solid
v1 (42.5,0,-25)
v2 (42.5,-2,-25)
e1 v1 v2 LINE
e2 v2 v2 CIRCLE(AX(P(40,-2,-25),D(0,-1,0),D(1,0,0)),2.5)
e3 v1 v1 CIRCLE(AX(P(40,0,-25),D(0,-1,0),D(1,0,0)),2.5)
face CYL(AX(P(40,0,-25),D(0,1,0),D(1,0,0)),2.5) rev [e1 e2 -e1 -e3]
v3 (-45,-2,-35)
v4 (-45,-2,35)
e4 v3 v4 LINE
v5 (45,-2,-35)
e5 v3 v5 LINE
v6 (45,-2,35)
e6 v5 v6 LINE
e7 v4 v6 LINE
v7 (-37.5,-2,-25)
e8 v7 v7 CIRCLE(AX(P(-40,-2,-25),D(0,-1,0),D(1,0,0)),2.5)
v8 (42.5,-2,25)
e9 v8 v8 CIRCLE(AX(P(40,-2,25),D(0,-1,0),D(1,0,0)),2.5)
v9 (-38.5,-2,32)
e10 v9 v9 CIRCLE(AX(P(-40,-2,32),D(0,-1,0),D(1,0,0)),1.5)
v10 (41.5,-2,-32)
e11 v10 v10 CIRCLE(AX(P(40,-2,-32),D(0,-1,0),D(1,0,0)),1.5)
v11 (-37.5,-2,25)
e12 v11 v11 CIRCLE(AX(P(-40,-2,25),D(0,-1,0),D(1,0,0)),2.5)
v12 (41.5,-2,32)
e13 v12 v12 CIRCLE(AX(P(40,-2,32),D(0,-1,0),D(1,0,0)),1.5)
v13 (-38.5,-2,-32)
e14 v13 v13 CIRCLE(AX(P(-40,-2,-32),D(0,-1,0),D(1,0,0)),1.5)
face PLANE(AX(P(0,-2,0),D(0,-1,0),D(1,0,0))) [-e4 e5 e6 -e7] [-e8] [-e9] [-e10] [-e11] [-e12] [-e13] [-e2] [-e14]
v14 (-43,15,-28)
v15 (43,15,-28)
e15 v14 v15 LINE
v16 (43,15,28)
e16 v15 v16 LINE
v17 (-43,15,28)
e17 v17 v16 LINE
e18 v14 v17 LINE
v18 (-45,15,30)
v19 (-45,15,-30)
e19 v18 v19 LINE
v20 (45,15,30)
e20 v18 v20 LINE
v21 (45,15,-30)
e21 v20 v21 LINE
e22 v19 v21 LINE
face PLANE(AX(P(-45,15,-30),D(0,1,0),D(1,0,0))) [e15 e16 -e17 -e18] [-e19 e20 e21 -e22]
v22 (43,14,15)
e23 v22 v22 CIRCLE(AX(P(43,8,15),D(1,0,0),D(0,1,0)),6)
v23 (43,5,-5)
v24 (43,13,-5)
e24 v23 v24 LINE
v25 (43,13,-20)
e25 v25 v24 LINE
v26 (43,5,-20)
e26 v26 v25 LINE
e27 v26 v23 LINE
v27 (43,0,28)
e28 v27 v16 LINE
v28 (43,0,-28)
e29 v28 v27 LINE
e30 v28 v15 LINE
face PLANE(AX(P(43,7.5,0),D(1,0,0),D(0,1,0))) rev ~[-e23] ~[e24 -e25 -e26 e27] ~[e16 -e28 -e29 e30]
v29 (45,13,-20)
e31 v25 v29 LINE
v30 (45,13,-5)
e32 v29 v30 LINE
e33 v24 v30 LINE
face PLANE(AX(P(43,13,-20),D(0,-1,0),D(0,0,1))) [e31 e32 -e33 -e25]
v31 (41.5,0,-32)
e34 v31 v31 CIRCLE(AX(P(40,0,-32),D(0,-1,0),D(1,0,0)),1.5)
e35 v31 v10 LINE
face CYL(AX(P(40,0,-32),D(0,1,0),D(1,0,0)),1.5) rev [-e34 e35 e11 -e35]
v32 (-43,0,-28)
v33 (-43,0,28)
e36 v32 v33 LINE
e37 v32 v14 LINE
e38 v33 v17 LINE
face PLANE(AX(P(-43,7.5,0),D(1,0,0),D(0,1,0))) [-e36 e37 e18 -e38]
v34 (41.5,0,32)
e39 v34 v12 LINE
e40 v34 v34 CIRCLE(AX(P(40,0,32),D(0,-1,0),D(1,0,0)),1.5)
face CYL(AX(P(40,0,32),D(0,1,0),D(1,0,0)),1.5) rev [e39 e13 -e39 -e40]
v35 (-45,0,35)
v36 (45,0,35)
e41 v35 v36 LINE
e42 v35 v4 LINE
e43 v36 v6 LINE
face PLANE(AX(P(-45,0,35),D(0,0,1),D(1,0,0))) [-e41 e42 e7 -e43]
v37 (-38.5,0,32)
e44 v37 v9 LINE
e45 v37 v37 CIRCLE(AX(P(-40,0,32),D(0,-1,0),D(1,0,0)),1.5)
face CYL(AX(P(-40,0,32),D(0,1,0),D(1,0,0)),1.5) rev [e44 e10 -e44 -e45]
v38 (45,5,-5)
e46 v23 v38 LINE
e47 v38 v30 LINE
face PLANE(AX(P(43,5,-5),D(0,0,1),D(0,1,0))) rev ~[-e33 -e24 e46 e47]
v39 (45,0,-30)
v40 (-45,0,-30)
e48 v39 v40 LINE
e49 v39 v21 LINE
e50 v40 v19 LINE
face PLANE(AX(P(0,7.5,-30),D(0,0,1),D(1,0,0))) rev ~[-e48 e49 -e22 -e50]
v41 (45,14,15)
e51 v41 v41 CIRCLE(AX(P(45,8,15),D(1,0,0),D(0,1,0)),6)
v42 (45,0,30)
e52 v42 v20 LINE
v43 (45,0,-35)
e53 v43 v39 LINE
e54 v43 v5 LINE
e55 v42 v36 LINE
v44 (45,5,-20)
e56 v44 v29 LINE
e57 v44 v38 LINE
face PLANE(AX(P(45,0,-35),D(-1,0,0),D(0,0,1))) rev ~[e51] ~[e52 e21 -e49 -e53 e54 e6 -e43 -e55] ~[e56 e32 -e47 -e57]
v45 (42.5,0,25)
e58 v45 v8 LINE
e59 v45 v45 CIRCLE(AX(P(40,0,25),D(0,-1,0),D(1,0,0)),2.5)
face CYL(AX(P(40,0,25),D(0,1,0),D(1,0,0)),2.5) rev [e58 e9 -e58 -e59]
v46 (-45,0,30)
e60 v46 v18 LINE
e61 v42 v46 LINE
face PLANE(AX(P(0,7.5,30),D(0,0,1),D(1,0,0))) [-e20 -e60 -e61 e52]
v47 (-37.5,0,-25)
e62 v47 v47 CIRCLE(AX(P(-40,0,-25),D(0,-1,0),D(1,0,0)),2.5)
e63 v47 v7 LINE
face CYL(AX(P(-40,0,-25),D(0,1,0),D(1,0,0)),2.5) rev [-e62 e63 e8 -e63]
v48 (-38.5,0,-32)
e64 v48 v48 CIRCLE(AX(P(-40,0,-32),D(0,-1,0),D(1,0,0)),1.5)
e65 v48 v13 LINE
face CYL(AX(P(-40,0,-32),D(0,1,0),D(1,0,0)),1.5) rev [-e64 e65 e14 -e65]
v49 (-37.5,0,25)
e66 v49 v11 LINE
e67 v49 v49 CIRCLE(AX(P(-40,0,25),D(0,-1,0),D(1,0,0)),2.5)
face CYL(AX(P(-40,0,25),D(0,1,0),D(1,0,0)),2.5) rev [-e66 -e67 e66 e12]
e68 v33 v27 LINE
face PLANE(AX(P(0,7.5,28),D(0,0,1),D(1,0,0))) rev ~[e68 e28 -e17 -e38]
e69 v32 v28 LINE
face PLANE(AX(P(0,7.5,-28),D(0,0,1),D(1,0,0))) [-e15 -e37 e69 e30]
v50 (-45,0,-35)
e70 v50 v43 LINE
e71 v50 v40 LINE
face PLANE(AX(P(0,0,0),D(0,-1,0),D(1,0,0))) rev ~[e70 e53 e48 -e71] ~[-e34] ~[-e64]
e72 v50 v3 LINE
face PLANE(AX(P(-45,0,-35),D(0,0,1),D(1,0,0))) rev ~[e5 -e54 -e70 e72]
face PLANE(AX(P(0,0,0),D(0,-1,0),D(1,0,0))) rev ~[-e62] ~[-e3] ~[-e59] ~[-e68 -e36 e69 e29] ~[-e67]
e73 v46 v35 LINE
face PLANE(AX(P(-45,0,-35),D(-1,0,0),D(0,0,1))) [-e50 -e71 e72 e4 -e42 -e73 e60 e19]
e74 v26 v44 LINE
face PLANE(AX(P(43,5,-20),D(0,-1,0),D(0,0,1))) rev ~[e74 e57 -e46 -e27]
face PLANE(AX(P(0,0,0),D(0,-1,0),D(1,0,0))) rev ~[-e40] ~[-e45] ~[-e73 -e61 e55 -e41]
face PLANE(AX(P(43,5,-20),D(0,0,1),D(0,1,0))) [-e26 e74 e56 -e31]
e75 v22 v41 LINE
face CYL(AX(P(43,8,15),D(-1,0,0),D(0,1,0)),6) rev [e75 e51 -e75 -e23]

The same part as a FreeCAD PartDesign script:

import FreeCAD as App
import Part
import Sketcher
Q = App.Units.Quantity


def add_polygon(sketch, points):
    """Adds a closed chain of lines whose ends are joined by coincident constraints."""
    first, n = sketch.GeometryCount, len(points)
    for a, b in zip(points, points[1:] + points[:1]):
        sketch.addGeometry(Part.LineSegment(App.Vector(*a, 0), App.Vector(*b, 0)), False)
    for i in range(n):
        sketch.addConstraint(Sketcher.Constraint("Coincident", first + i, 2, first + (i + 1) % n, 1))

doc = App.newDocument("Part")
body = doc.addObject("PartDesign::Body", "Body")

sketch1 = body.newObject("Sketcher::SketchObject", "Sketch")
sketch1.AttachmentSupport = (doc.getObject("YZ_Plane"), [""])
sketch1.MapMode = "FlatFace"
add_polygon(sketch1, [(0, 30), (0, -30), (15, -30), (15, 30)])
add_polygon(sketch1, [(13, -20), (5, -20), (5, -5), (13, -5)])
sketch1.addGeometry(Part.Circle(App.Vector(8, 15, 0), App.Vector(0, 0, 1), 6), False)
sketch1.addConstraint([
    Sketcher.Constraint("Vertical", 0),
    Sketcher.Constraint("Horizontal", 1),
    Sketcher.Constraint("Vertical", 2),
    Sketcher.Constraint("Horizontal", 3),
    Sketcher.Constraint("Horizontal", 4),
    Sketcher.Constraint("Vertical", 5),
    Sketcher.Constraint("Horizontal", 6),
    Sketcher.Constraint("Vertical", 7),
    Sketcher.Constraint("Symmetric", 0, 2, 3, 2, -1, 1),
    Sketcher.Constraint("Equal", 3, 5),
    Sketcher.Constraint("Diameter", 8, Q("12 mm")),
    Sketcher.Constraint("DistanceX", 1, 1, 1, 2, Q("15 mm")),
    Sketcher.Constraint("DistanceX", 4, 2, 4, 1, Q("8 mm")),
    Sketcher.Constraint("DistanceY", 0, 2, 0, 1, Q("60 mm")),
    Sketcher.Constraint("DistanceX", -1, 1, 8, 3, Q("8 mm")),
    Sketcher.Constraint("DistanceY", -1, 1, 8, 3, Q("15 mm")),
    Sketcher.Constraint("DistanceX", -1, 1, 4, 2, Q("5 mm")),
    Sketcher.Constraint("DistanceY", 4, 2, -1, 1, Q("20 mm")),
])
pad1 = body.newObject("PartDesign::Pad", "Pad")
pad1.Profile = sketch1
pad1.Length = 2
body2 = doc.addObject("PartDesign::Body", "Body001")
doc.recompute()

body.Placement = App.Placement(App.Vector(43, 0, 0), App.Rotation(App.Vector(0, 0, 1), 0))
boolean = body2.newObject("PartDesign::Boolean", "Boolean")
boolean.Type = "Fuse"
boolean.addObjects([body])
body3 = doc.addObject("PartDesign::Body", "Body002")

sketch2 = body3.newObject("Sketcher::SketchObject", "Sketch001")
sketch2.AttachmentSupport = (doc.getObject("YZ_Plane002"), [""])
sketch2.MapMode = "FlatFace"
add_polygon(sketch2, [(0, 30), (0, -30), (15, -30), (15, 30)])
sketch2.addConstraint([
    Sketcher.Constraint("Vertical", 0),
    Sketcher.Constraint("Horizontal", 1),
    Sketcher.Constraint("Vertical", 2),
    Sketcher.Constraint("Horizontal", 3),
    Sketcher.Constraint("Symmetric", 0, 2, 3, 2, -1, 1),
    Sketcher.Constraint("DistanceX", 1, 1, 1, 2, Q("15 mm")),
    Sketcher.Constraint("DistanceY", 0, 2, 0, 1, Q("60 mm")),
])
pad2 = body3.newObject("PartDesign::Pad", "Pad001")
pad2.Profile = sketch2
pad2.Length = 2
body4 = doc.addObject("PartDesign::Body", "Body003")
doc.recompute()

body3.Placement = App.Placement(App.Vector(-45, 0, 0), App.Rotation(App.Vector(0, 0, 1), 0))
boolean2 = body4.newObject("PartDesign::Boolean", "Boolean001")
boolean2.Type = "Fuse"
boolean2.addObjects([body3])
body5 = doc.addObject("PartDesign::Body", "Body004")

sketch3 = body5.newObject("Sketcher::SketchObject", "Sketch002")
sketch3.AttachmentSupport = (doc.getObject("XY_Plane004"), [""])
sketch3.MapMode = "FlatFace"
add_polygon(sketch3, [(-45, 15), (-45, 0), (45, 0), (45, 15)])
sketch3.addConstraint([
    Sketcher.Constraint("Vertical", 0),
    Sketcher.Constraint("Horizontal", 1),
    Sketcher.Constraint("Vertical", 2),
    Sketcher.Constraint("Horizontal", 3),
    Sketcher.Constraint("Symmetric", 0, 2, 1, 2, -1, 1),
    Sketcher.Constraint("DistanceX", 1, 1, 1, 2, Q("90 mm")),
    Sketcher.Constraint("DistanceY", 0, 2, 0, 1, Q("15 mm")),
])
pad3 = body5.newObject("PartDesign::Pad", "Pad002")
pad3.Profile = sketch3
pad3.Length = 2
body6 = doc.addObject("PartDesign::Body", "Body005")
doc.recompute()

body5.Placement = App.Placement(App.Vector(0, 0, -30), App.Rotation(App.Vector(0, 0, 1), 0))
boolean3 = body6.newObject("PartDesign::Boolean", "Boolean002")
boolean3.Type = "Fuse"
boolean3.addObjects([body5])
body7 = doc.addObject("PartDesign::Body", "Body006")

sketch4 = body7.newObject("Sketcher::SketchObject", "Sketch003")
sketch4.AttachmentSupport = (doc.getObject("XY_Plane006"), [""])
sketch4.MapMode = "FlatFace"
add_polygon(sketch4, [(-45, 15), (-45, 0), (45, 0), (45, 15)])
sketch4.addConstraint([
    Sketcher.Constraint("Vertical", 0),
    Sketcher.Constraint("Horizontal", 1),
    Sketcher.Constraint("Vertical", 2),
    Sketcher.Constraint("Horizontal", 3),
    Sketcher.Constraint("Symmetric", 0, 2, 1, 2, -1, 1),
    Sketcher.Constraint("DistanceX", 1, 1, 1, 2, Q("90 mm")),
    Sketcher.Constraint("DistanceY", 0, 2, 0, 1, Q("15 mm")),
])
pad4 = body7.newObject("PartDesign::Pad", "Pad003")
pad4.Profile = sketch4
pad4.Length = 2
body8 = doc.addObject("PartDesign::Body", "Body007")
doc.recompute()

body7.Placement = App.Placement(App.Vector(0, 0, 28), App.Rotation(App.Vector(0, 0, 1), 0))
boolean4 = body8.newObject("PartDesign::Boolean", "Boolean003")
boolean4.Type = "Fuse"
boolean4.addObjects([body7])
body9 = doc.addObject("PartDesign::Body", "Body008")

sketch5 = body9.newObject("Sketcher::SketchObject", "Sketch004")
sketch5.AttachmentSupport = (doc.getObject("XZ_Plane008"), [""])
sketch5.MapMode = "FlatFace"
add_polygon(sketch5, [(-45, 35), (-45, -35), (45, -35), (45, 35)])
sketch5.addGeometry(Part.Circle(App.Vector(-40, -32, 0), App.Vector(0, 0, 1), 1.5), False)
sketch5.addGeometry(Part.Circle(App.Vector(-40, -25, 0), App.Vector(0, 0, 1), 2.5), False)
sketch5.addGeometry(Part.Circle(App.Vector(40, -32, 0), App.Vector(0, 0, 1), 1.5), False)
sketch5.addGeometry(Part.Circle(App.Vector(40, -25, 0), App.Vector(0, 0, 1), 2.5), False)
sketch5.addGeometry(Part.Circle(App.Vector(-40, 25, 0), App.Vector(0, 0, 1), 2.5), False)
sketch5.addGeometry(Part.Circle(App.Vector(-40, 32, 0), App.Vector(0, 0, 1), 1.5), False)
sketch5.addGeometry(Part.Circle(App.Vector(40, 25, 0), App.Vector(0, 0, 1), 2.5), False)
sketch5.addGeometry(Part.Circle(App.Vector(40, 32, 0), App.Vector(0, 0, 1), 1.5), False)
sketch5.addConstraint([
    Sketcher.Constraint("Vertical", 0),
    Sketcher.Constraint("Horizontal", 1),
    Sketcher.Constraint("Vertical", 2),
    Sketcher.Constraint("Horizontal", 3),
    Sketcher.Constraint("Equal", 4, 6),
    Sketcher.Constraint("Equal", 5, 7),
    Sketcher.Constraint("Equal", 7, 8),
    Sketcher.Constraint("Equal", 6, 9),
    Sketcher.Constraint("Equal", 8, 10),
    Sketcher.Constraint("Equal", 9, 11),
    Sketcher.Constraint("Symmetric", 7, 3, 8, 3, -1, 1),
    Sketcher.Constraint("Symmetric", 6, 3, 9, 3, -1, 1),
    Sketcher.Constraint("Symmetric", 5, 3, 10, 3, -1, 1),
    Sketcher.Constraint("Symmetric", 4, 3, 11, 3, -1, 1),
    Sketcher.Constraint("Symmetric", 0, 2, 2, 2, -1, 1),
    Sketcher.Constraint("Symmetric", 4, 3, 6, 3, -2),
    Sketcher.Constraint("Symmetric", 5, 3, 7, 3, -2),
    Sketcher.Constraint("Vertical", 4, 3, 5, 3),
    Sketcher.Constraint("Diameter", 4, Q("3 mm")),
    Sketcher.Constraint("Diameter", 5, Q("5 mm")),
    Sketcher.Constraint("DistanceX", 1, 1, 1, 2, Q("90 mm")),
    Sketcher.Constraint("DistanceY", 0, 2, 0, 1, Q("70 mm")),
    Sketcher.Constraint("DistanceX", 4, 3, -1, 1, Q("40 mm")),
    Sketcher.Constraint("DistanceY", 4, 3, -1, 1, Q("32 mm")),
    Sketcher.Constraint("DistanceY", 5, 3, -1, 1, Q("25 mm")),
])
pad5 = body9.newObject("PartDesign::Pad", "Pad004")
pad5.Profile = sketch5
pad5.Length = 2
doc.recompute()

boolean5 = body9.newObject("PartDesign::Boolean", "Boolean004")
boolean5.Type = "Fuse"
boolean5.addObjects([body8])
doc.recompute()

boolean6 = body9.newObject("PartDesign::Boolean", "Boolean005")
boolean6.Type = "Fuse"
boolean6.addObjects([body6])
doc.recompute()

boolean7 = body9.newObject("PartDesign::Boolean", "Boolean006")
boolean7.Type = "Fuse"
boolean7.addObjects([body4])
doc.recompute()

boolean8 = body9.newObject("PartDesign::Boolean", "Boolean007")
boolean8.Type = "Fuse"
boolean8.addObjects([body2])

doc.recompute()
